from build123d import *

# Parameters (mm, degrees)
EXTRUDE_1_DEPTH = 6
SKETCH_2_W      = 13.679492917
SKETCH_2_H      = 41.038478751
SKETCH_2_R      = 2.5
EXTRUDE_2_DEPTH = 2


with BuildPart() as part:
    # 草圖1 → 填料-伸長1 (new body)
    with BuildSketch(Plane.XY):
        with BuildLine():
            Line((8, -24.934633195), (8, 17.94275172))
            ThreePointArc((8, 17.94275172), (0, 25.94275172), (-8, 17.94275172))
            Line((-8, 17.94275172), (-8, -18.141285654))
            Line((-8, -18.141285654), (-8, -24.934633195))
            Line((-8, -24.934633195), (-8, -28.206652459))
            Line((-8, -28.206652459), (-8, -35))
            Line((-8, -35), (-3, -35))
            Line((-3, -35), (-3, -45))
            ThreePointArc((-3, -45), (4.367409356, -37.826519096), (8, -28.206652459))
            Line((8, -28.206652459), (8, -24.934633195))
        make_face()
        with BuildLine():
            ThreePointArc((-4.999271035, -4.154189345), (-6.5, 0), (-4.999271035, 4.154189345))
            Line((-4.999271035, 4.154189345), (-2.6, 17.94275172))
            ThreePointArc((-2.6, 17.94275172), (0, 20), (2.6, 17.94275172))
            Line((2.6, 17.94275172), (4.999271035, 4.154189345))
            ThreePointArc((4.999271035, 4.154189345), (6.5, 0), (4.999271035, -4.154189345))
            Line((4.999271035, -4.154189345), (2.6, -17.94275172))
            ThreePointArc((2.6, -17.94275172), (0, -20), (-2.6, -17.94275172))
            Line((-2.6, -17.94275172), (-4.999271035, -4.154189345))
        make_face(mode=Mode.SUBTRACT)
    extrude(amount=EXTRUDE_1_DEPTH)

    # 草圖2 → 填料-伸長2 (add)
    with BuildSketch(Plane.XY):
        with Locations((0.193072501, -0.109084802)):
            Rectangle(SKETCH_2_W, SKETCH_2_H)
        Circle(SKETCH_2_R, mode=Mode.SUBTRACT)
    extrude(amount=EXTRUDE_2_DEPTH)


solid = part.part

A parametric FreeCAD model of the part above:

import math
import FreeCAD as App
import Part
import Sketcher

V = App.Vector
Q = App.Units.Quantity


def add_polygon(sketch, points):
    """Adds a closed chain of lines whose ends are joined by coincident constraints."""
    first, n = sketch.GeometryCount, len(points)
    for a, b in zip(points, points[1:] + points[:1]):
        sketch.addGeometry(Part.LineSegment(App.Vector(*a, 0), App.Vector(*b, 0)), False)
    for i in range(n):
        sketch.addConstraint(Sketcher.Constraint("Coincident", first + i, 2, first + (i + 1) % n, 1))

doc = App.newDocument("Part")
body = doc.addObject("PartDesign::Body", "Body")

sketch1 = body.newObject("Sketcher::SketchObject", "Sketch")
sketch1.AttachmentSupport = (doc.getObject("XY_Plane"), [""])
sketch1.MapMode = "FlatFace"
sketch1.addGeometry([
    Part.ArcOfCircle(Part.Circle(V(0, 17.942752, 0), V(0, 0, 1), 8), math.radians(0), math.radians(180)),
    Part.LineSegment(V(-8, 17.942752, 0), V(-8, -35, 0)),
    Part.LineSegment(V(-8, -35, 0), V(-3, -35, 0)),
    Part.LineSegment(V(-3, -35, 0), V(-3, -45, 0)),
    Part.ArcOfCircle(Part.Circle(V(-15.443819, -24.849743, 0), V(0, 0, 1), 23.682937), math.radians(-58.302538), math.radians(-8.148766)),
    Part.LineSegment(V(8, -28.206652, 0), V(8, 17.942752, 0)),
    Part.LineSegment(V(-2.6, -17.942752, 0), V(-4.999271, -4.154189, 0)),
    Part.ArcOfCircle(Part.Circle(V(0, 0, 0), V(0, 0, 1), 6.5), math.radians(140.274808), math.radians(219.725192)),
    Part.LineSegment(V(-4.999271, 4.154189, 0), V(-2.6, 17.942752, 0)),
    Part.ArcOfCircle(Part.Circle(V(0, 17.328405, 0), V(0, 0, 1), 2.671595), math.radians(13.294433), math.radians(166.705567)),
    Part.LineSegment(V(2.6, 17.942752, 0), V(4.999271, 4.154189, 0)),
    Part.ArcOfCircle(Part.Circle(V(0, 0, 0), V(0, 0, 1), 6.5), math.radians(-39.725192), math.radians(39.725192)),
    Part.LineSegment(V(4.999271, -4.154189, 0), V(2.6, -17.942752, 0)),
    Part.ArcOfCircle(Part.Circle(V(0, -17.328405, 0), V(0, 0, 1), 2.671595), math.radians(-166.705567), math.radians(-13.294433)),
], False)
sketch1.addConstraint([
    Sketcher.Constraint("Tangent", 0, 2, 1, 1),
    Sketcher.Constraint("Coincident", 1, 2, 2, 1),
    Sketcher.Constraint("Coincident", 2, 2, 3, 1),
    Sketcher.Constraint("Coincident", 3, 2, 4, 1),
    Sketcher.Constraint("Coincident", 4, 2, 5, 1),
    Sketcher.Constraint("Tangent", 5, 2, 0, 1),
    Sketcher.Constraint("Coincident", 6, 2, 7, 2),
    Sketcher.Constraint("Coincident", 7, 1, 8, 1),
    Sketcher.Constraint("Coincident", 8, 2, 9, 2),
    Sketcher.Constraint("Coincident", 9, 1, 10, 1),
    Sketcher.Constraint("Coincident", 10, 2, 11, 2),
    Sketcher.Constraint("Coincident", 11, 1, 12, 1),
    Sketcher.Constraint("Coincident", 12, 2, 13, 2),
    Sketcher.Constraint("Coincident", 13, 1, 6, 1),
    Sketcher.Constraint("Vertical", 1),
    Sketcher.Constraint("Horizontal", 2),
    Sketcher.Constraint("Vertical", 3),
    Sketcher.Constraint("Vertical", 5),
    Sketcher.Constraint("Coincident", 7, 3, -1, 1),
    Sketcher.Constraint("Coincident", 11, 3, -1, 1),
    Sketcher.Constraint("Equal", 7, 11),
    Sketcher.Constraint("Equal", 9, 13),
    Sketcher.Constraint("Symmetric", 9, 3, 13, 3, -1, 1),
    Sketcher.Constraint("Symmetric", 8, 2, 9, 1, -2),
    Sketcher.Constraint("PointOnObject", 0, 3, -2),
    Sketcher.Constraint("Parallel", 6, 10),
    Sketcher.Constraint("Parallel", 8, 12),
    Sketcher.Constraint("Horizontal", 5, 2, 8, 2),
    Sketcher.Constraint("Horizontal", 7, 1, 10, 2),
    Sketcher.Constraint("Horizontal", 6, 2, 11, 1),
    Sketcher.Constraint("Vertical", 6, 2, 7, 1),
    Sketcher.Constraint("Radius", 0, Q("8 mm")),
    Sketcher.Constraint("Radius", 7, Q("6.5 mm")),
    Sketcher.Constraint("DistanceX", 2, 1, 2, 2, Q("5 mm")),
    Sketcher.Constraint("DistanceY", 3, 2, 3, 1, Q("10 mm")),
    Sketcher.Constraint("DistanceY", 1, 2, -1, 1, Q("35 mm")),
    Sketcher.Constraint("DistanceX", 8, 2, -1, 1, Q("2.6 mm")),
    Sketcher.Constraint("Radius", 4, Q("23.682937 mm")),
    Sketcher.Constraint("Radius", 9, Q("2.671595 mm")),
    Sketcher.Constraint("DistanceY", 1, 2, 1, 1, Q("52.942752 mm")),
    Sketcher.Constraint("DistanceY", 4, 2, 12, 2, Q("10.263901 mm")),
    Sketcher.Constraint("DistanceX", 6, 2, -1, 1, Q("4.999271 mm")),
])
pad1 = body.newObject("PartDesign::Pad", "Pad")
pad1.Profile = sketch1
pad1.Length = 6

sketch2 = body.newObject("Sketcher::SketchObject", "Sketch001")
sketch2.AttachmentSupport = (doc.getObject("XY_Plane"), [""])
sketch2.MapMode = "FlatFace"
add_polygon(sketch2, [(-6.646674, 20.410155), (-6.646674, -20.628324), (7.032819, -20.628324), (7.032819, 20.410155)])
sketch2.addGeometry(Part.Circle(V(0, 0, 0), V(0, 0, 1), 2.5), False)
sketch2.addConstraint([
    Sketcher.Constraint("Vertical", 0),
    Sketcher.Constraint("Horizontal", 1),
    Sketcher.Constraint("Vertical", 2),
    Sketcher.Constraint("Horizontal", 3),
    Sketcher.Constraint("Coincident", 4, 3, -1, 1),
    Sketcher.Constraint("Diameter", 4, Q("5 mm")),
    Sketcher.Constraint("DistanceY", 0, 2, 0, 1, Q("41.038479 mm")),
    Sketcher.Constraint("DistanceX", 1, 1, 1, 2, Q("13.679493 mm")),
    Sketcher.Constraint("DistanceX", -1, 1, 1, 2, Q("7.032819 mm")),
    Sketcher.Constraint("DistanceY", 0, 2, -1, 1, Q("20.628324 mm")),
])
pad2 = body.newObject("PartDesign::Pad", "Pad001")
pad2.Profile = sketch2
pad2.Length = 2

doc.recompute()
